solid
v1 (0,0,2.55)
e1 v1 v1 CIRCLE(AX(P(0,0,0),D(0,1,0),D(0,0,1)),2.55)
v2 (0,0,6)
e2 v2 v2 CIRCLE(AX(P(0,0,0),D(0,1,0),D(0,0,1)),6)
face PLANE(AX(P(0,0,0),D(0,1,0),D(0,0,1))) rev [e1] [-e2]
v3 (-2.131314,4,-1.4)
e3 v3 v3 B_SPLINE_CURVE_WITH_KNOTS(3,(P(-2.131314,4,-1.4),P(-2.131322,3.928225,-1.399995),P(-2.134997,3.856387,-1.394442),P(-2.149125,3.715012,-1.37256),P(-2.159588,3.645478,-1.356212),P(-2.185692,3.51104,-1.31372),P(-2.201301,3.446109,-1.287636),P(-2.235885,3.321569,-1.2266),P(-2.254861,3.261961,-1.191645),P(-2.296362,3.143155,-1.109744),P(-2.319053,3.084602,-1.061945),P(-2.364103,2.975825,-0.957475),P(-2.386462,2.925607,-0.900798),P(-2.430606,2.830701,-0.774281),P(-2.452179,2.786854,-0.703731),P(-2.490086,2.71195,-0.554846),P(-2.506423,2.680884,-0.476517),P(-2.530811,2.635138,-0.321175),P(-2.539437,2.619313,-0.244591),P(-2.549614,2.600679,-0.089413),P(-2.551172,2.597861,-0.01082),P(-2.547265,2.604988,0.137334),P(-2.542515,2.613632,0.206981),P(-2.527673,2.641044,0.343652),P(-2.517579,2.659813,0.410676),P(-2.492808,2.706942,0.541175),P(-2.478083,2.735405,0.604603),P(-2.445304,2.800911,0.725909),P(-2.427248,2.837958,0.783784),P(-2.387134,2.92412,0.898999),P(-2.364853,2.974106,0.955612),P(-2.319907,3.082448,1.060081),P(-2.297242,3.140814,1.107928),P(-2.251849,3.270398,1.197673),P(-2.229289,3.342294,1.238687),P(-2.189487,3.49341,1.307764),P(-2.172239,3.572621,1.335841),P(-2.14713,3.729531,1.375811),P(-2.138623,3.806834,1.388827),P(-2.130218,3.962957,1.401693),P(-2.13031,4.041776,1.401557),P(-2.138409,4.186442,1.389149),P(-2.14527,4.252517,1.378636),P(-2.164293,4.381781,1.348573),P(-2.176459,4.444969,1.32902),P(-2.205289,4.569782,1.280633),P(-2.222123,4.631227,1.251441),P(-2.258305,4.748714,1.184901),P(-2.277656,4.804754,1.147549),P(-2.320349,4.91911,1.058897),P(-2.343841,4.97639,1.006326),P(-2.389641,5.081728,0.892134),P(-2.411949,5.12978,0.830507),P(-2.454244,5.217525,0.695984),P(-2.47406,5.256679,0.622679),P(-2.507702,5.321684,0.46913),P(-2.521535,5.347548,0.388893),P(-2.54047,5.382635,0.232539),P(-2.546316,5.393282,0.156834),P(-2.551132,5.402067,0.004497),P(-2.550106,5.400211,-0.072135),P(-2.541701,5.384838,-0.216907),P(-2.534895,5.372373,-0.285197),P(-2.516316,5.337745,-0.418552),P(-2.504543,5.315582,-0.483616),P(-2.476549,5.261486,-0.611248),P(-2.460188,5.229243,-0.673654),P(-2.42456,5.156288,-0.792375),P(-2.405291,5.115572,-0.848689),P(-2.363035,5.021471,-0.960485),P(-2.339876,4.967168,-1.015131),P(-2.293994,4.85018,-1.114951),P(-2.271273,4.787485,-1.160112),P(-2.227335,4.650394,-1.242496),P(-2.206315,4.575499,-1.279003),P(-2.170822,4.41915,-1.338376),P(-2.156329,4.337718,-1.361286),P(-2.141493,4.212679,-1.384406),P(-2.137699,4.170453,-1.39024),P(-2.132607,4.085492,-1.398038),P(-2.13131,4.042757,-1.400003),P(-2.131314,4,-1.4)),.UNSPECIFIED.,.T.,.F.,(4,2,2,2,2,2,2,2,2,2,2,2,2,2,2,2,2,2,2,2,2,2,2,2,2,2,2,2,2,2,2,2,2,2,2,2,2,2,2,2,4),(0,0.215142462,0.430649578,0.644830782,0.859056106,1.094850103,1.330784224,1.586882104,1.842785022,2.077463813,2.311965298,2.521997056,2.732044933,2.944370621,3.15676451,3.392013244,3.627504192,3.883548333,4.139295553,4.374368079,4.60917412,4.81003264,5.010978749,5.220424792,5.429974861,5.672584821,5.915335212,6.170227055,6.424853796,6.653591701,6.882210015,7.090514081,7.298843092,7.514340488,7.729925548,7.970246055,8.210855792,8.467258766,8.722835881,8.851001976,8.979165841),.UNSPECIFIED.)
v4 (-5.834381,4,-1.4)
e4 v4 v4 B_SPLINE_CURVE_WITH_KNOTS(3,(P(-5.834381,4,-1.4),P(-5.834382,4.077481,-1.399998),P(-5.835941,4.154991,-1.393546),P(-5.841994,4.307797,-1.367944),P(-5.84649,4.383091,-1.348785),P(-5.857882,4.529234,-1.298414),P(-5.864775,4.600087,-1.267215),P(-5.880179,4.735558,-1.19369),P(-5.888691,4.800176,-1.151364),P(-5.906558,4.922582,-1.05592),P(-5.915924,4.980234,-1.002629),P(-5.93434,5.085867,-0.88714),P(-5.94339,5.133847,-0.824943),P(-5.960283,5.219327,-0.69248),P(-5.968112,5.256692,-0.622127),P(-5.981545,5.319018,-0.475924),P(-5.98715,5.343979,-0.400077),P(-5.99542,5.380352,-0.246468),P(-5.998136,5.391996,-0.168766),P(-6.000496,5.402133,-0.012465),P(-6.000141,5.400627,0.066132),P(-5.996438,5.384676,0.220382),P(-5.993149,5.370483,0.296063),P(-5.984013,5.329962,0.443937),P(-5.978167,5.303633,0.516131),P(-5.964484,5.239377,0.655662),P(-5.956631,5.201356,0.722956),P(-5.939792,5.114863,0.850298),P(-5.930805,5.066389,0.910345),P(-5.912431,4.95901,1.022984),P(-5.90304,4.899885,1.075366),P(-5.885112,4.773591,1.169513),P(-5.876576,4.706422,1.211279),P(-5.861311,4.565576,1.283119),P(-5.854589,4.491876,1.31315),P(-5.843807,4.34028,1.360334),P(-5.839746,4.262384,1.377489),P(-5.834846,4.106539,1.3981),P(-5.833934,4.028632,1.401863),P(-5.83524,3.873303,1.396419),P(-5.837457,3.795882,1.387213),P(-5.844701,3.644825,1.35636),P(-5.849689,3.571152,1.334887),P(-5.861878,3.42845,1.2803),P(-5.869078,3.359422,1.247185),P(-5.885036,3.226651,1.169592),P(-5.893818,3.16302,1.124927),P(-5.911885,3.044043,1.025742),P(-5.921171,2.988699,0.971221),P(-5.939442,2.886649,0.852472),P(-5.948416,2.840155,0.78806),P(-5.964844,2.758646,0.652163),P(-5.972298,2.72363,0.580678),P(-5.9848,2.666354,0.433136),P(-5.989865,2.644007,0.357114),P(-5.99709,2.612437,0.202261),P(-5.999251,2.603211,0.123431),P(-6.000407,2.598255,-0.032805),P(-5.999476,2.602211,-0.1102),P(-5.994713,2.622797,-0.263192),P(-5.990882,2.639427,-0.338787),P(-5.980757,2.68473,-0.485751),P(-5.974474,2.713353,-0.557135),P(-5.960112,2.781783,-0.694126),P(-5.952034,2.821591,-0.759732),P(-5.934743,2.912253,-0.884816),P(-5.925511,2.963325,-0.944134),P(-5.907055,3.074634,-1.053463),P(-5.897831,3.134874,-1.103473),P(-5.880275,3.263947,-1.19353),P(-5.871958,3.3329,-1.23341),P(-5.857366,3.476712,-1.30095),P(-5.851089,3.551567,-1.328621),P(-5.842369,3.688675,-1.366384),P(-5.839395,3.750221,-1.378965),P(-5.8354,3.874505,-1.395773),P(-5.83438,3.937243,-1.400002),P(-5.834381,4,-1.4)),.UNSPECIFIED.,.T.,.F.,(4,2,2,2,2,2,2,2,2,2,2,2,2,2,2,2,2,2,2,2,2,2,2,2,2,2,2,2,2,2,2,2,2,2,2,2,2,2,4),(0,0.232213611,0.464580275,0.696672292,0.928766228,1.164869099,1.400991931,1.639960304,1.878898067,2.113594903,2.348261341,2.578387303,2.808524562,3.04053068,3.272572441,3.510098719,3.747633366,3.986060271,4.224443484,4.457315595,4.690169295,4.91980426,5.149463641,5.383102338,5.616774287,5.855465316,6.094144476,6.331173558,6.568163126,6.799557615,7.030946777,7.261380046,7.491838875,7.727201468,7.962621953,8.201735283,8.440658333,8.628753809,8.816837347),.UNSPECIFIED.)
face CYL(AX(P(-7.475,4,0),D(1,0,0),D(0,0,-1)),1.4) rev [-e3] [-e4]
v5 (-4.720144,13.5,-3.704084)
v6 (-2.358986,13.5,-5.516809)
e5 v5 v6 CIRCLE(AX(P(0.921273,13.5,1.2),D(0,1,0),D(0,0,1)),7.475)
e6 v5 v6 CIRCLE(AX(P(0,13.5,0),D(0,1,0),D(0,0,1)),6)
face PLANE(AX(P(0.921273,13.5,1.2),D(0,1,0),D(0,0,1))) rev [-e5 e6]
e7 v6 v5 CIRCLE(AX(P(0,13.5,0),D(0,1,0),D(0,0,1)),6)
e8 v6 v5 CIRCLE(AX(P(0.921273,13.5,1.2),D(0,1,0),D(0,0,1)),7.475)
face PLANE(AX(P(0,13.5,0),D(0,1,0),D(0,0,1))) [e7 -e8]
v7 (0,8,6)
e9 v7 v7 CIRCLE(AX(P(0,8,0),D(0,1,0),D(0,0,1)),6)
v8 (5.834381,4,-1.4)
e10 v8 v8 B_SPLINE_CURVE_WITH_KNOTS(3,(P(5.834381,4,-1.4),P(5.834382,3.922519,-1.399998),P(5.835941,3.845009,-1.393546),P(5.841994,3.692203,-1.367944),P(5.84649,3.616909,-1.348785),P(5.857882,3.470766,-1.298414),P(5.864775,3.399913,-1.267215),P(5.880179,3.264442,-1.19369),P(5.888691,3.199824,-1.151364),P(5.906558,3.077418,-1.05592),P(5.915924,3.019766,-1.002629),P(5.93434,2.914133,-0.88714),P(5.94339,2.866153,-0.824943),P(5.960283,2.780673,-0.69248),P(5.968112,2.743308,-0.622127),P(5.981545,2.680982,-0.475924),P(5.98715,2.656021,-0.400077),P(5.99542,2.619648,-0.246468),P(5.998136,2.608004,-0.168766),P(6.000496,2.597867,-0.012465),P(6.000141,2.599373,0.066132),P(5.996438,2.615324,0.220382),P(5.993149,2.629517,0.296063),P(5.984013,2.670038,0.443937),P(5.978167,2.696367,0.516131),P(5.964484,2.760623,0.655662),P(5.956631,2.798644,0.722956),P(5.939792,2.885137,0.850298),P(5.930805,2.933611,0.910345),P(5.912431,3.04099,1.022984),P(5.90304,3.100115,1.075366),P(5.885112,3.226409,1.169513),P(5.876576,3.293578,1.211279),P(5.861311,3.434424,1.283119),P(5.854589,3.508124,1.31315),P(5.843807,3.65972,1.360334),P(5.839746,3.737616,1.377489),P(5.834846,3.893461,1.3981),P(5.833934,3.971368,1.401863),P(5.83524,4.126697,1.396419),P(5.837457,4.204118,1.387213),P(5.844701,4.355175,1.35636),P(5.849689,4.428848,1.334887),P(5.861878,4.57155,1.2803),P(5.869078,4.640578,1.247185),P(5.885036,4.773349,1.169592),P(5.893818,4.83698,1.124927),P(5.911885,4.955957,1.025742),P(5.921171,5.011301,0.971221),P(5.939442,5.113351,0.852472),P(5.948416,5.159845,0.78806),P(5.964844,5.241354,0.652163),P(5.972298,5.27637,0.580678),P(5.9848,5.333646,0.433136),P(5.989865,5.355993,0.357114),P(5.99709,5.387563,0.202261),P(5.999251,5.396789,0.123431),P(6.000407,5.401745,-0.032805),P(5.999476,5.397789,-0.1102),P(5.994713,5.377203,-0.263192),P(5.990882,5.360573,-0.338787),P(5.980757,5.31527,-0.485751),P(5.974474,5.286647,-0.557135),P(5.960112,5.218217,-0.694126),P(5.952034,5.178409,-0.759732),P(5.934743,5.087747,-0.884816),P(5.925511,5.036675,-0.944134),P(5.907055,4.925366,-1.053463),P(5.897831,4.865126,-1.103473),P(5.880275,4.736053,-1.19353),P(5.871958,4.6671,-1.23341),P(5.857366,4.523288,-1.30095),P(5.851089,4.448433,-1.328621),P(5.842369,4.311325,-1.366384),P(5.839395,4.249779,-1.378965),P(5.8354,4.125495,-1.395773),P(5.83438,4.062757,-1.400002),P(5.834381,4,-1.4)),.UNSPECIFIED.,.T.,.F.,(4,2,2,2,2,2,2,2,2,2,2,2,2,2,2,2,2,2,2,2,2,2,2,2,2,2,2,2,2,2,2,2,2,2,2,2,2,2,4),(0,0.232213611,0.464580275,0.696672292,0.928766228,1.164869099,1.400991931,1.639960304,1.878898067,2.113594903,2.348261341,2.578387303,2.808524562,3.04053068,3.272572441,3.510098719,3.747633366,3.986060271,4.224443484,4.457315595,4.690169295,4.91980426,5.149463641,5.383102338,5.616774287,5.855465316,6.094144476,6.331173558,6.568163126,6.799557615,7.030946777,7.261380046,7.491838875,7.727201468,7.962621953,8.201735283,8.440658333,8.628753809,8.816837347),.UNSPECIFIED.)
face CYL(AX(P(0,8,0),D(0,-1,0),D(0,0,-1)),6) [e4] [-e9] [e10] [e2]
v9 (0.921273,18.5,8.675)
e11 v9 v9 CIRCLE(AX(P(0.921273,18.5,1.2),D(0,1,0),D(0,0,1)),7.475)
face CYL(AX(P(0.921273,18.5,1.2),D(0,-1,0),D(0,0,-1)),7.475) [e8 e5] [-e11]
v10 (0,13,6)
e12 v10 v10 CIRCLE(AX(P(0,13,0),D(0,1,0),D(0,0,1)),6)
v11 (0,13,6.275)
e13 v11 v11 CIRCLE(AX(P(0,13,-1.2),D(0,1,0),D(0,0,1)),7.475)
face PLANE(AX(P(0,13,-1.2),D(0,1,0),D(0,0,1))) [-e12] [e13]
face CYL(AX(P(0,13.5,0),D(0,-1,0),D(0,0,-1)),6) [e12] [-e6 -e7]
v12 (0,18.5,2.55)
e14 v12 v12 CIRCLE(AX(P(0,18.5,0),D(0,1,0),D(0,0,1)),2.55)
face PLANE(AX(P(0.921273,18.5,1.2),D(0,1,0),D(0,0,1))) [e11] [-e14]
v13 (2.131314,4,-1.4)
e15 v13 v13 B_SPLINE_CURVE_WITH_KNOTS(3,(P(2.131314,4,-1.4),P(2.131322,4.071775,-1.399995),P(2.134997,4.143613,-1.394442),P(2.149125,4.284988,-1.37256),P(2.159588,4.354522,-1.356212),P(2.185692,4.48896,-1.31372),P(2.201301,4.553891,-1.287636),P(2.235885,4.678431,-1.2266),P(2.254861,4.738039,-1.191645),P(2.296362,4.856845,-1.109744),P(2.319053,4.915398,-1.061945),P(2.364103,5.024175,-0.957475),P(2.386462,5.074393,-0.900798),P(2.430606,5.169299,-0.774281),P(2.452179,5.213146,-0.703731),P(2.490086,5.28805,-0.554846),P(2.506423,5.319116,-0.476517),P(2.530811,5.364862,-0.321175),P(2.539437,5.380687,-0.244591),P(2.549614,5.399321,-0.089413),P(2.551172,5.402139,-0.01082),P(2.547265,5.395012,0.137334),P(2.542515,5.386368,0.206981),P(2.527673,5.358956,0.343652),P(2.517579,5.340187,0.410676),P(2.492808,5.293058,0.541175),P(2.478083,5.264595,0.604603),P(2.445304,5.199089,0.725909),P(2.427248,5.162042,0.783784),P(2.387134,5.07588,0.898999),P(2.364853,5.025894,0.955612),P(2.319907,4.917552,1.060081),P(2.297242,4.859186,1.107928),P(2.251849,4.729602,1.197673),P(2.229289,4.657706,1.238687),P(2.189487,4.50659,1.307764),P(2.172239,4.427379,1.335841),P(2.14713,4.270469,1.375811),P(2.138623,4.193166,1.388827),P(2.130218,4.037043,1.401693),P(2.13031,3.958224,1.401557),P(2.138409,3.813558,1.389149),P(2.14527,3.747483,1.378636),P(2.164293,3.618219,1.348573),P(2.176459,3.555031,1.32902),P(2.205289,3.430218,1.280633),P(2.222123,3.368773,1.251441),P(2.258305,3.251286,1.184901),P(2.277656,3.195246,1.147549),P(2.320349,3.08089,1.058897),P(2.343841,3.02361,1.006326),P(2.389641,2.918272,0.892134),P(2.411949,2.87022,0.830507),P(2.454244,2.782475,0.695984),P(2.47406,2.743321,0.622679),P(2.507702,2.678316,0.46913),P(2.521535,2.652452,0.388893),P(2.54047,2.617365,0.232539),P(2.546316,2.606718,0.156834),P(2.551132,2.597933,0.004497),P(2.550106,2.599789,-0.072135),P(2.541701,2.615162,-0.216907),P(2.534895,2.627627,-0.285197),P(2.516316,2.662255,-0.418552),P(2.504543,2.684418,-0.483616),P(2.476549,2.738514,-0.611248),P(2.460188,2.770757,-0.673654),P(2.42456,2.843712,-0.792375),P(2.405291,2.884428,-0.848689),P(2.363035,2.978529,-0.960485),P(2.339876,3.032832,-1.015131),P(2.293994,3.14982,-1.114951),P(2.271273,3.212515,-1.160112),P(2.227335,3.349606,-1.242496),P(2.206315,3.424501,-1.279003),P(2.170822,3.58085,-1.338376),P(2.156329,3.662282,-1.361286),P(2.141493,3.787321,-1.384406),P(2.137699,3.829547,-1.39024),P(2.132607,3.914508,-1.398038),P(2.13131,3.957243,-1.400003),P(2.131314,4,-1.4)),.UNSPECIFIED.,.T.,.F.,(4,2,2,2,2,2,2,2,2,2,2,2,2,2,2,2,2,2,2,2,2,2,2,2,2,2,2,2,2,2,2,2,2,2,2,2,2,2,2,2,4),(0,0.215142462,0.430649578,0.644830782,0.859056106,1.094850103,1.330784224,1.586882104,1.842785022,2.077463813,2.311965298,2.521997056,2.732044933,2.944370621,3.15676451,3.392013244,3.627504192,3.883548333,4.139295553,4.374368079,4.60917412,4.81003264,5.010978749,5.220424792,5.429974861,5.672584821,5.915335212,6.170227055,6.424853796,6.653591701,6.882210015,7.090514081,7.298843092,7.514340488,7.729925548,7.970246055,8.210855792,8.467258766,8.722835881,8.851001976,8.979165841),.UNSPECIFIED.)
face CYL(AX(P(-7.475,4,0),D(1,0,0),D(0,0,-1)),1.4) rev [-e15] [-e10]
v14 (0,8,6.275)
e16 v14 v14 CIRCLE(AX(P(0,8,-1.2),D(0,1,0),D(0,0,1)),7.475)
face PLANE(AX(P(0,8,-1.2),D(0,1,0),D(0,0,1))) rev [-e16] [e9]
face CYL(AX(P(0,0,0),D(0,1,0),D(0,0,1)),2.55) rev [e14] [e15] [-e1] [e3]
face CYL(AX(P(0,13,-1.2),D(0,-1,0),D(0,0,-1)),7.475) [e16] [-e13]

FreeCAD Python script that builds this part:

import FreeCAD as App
import Part
import Sketcher

V = App.Vector
Q = App.Units.Quantity

doc = App.newDocument("Part")
body = doc.addObject("PartDesign::Body", "Body")

sketch1 = body.newObject("Sketcher::SketchObject", "Sketch")
sketch1.AttachmentSupport = (doc.getObject("XZ_Plane"), [""])
sketch1.MapMode = "FlatFace"
sketch1.addGeometry(Part.Circle(V(0, 0, 0), V(0, 0, 1), 6), False)
sketch1.addConstraint(Sketcher.Constraint("Coincident", 0, 3, -1, 1))
sketch1.addConstraint(Sketcher.Constraint("Diameter", 0, Q("12 mm")))
pad1 = body.newObject("PartDesign::Pad", "Pad")
pad1.Profile = sketch1
pad1.Length = 8
pad1.Reversed = True

sketch2 = body.newObject("Sketcher::SketchObject", "Sketch001")
sketch2.AttachmentSupport = (doc.getObject("XZ_Plane"), [""])
sketch2.MapMode = "FlatFace"
sketch2.AttachmentOffset = App.Placement(V(0, 0, -8), App.Rotation())
sketch2.addGeometry(Part.Circle(V(0, -1, 0), V(0, 0, 1), 7), False)
sketch2.addConstraint(Sketcher.Constraint("PointOnObject", 0, 3, -2))
sketch2.addConstraint(Sketcher.Constraint("Diameter", 0, Q("14.95 mm")))
sketch2.addConstraint(Sketcher.Constraint("DistanceY", 0, 3, -1, 1, Q("1.2 mm")))
pad2 = body.newObject("PartDesign::Pad", "Pad001")
pad2.Profile = sketch2
pad2.Length = 5
pad2.Reversed = True

sketch3 = body.newObject("Sketcher::SketchObject", "Sketch002")
sketch3.AttachmentSupport = (doc.getObject("XZ_Plane"), [""])
sketch3.MapMode = "FlatFace"
sketch3.AttachmentOffset = App.Placement(V(0, 0, -13), App.Rotation())
sketch3.addGeometry(Part.Circle(V(0, 0, 0), V(0, 0, 1), 6), False)
sketch3.addConstraint(Sketcher.Constraint("Coincident", 0, 3, -1, 1))
sketch3.addConstraint(Sketcher.Constraint("Diameter", 0, Q("12 mm")))
pad3 = body.newObject("PartDesign::Pad", "Pad002")
pad3.Profile = sketch3
pad3.Length = 0.5
pad3.Reversed = True

sketch4 = body.newObject("Sketcher::SketchObject", "Sketch003")
sketch4.AttachmentSupport = (doc.getObject("XZ_Plane"), [""])
sketch4.MapMode = "FlatFace"
sketch4.AttachmentOffset = App.Placement(V(0, 0, -13.5), App.Rotation())
sketch4.addGeometry(Part.Circle(V(1, 1, 0), V(0, 0, 1), 7), False)
sketch4.addConstraint(Sketcher.Constraint("Diameter", 0, Q("14.95 mm")))
sketch4.addConstraint(Sketcher.Constraint("DistanceY", -1, 1, 0, 3, Q("1.2 mm")))
sketch4.addConstraint(Sketcher.Constraint("DistanceX", -1, 1, 0, 3, Q("0.921273 mm")))
pad4 = body.newObject("PartDesign::Pad", "Pad003")
pad4.Profile = sketch4
pad4.Length = 5
pad4.Reversed = True

sketch5 = body.newObject("Sketcher::SketchObject", "Sketch004")
sketch5.AttachmentSupport = (doc.getObject("XZ_Plane"), [""])
sketch5.MapMode = "FlatFace"
sketch5.AttachmentOffset = App.Placement(V(0, 0, -18.5), App.Rotation())
sketch5.addGeometry(Part.Circle(V(0, 0, 0), V(0, 0, 1), 2.5), False)
sketch5.addConstraint(Sketcher.Constraint("Coincident", 0, 3, -1, 1))
sketch5.addConstraint(Sketcher.Constraint("Diameter", 0, Q("5.1 mm")))
pocket1 = body.newObject("PartDesign::Pocket", "Pocket")
pocket1.Profile = sketch5
pocket1.Type = "ThroughAll"
pocket1.Reversed = True

sketch6 = body.newObject("Sketcher::SketchObject", "Sketch005")
sketch6.AttachmentSupport = (doc.getObject("YZ_Plane"), [""])
sketch6.MapMode = "FlatFace"
sketch6.addGeometry(Part.Circle(V(4, 0, 0), V(0, 0, 1), 1.4), False)
sketch6.addConstraint(Sketcher.Constraint("PointOnObject", 0, 3, -1))
sketch6.addConstraint(Sketcher.Constraint("Diameter", 0, Q("2.8 mm")))
sketch6.addConstraint(Sketcher.Constraint("DistanceX", -1, 1, 0, 3, Q("4 mm")))
pocket2 = body.newObject("PartDesign::Pocket", "Pocket001")
pocket2.Profile = sketch6
pocket2.Type = "ThroughAll"
pocket2.Midplane = True

doc.recompute()
